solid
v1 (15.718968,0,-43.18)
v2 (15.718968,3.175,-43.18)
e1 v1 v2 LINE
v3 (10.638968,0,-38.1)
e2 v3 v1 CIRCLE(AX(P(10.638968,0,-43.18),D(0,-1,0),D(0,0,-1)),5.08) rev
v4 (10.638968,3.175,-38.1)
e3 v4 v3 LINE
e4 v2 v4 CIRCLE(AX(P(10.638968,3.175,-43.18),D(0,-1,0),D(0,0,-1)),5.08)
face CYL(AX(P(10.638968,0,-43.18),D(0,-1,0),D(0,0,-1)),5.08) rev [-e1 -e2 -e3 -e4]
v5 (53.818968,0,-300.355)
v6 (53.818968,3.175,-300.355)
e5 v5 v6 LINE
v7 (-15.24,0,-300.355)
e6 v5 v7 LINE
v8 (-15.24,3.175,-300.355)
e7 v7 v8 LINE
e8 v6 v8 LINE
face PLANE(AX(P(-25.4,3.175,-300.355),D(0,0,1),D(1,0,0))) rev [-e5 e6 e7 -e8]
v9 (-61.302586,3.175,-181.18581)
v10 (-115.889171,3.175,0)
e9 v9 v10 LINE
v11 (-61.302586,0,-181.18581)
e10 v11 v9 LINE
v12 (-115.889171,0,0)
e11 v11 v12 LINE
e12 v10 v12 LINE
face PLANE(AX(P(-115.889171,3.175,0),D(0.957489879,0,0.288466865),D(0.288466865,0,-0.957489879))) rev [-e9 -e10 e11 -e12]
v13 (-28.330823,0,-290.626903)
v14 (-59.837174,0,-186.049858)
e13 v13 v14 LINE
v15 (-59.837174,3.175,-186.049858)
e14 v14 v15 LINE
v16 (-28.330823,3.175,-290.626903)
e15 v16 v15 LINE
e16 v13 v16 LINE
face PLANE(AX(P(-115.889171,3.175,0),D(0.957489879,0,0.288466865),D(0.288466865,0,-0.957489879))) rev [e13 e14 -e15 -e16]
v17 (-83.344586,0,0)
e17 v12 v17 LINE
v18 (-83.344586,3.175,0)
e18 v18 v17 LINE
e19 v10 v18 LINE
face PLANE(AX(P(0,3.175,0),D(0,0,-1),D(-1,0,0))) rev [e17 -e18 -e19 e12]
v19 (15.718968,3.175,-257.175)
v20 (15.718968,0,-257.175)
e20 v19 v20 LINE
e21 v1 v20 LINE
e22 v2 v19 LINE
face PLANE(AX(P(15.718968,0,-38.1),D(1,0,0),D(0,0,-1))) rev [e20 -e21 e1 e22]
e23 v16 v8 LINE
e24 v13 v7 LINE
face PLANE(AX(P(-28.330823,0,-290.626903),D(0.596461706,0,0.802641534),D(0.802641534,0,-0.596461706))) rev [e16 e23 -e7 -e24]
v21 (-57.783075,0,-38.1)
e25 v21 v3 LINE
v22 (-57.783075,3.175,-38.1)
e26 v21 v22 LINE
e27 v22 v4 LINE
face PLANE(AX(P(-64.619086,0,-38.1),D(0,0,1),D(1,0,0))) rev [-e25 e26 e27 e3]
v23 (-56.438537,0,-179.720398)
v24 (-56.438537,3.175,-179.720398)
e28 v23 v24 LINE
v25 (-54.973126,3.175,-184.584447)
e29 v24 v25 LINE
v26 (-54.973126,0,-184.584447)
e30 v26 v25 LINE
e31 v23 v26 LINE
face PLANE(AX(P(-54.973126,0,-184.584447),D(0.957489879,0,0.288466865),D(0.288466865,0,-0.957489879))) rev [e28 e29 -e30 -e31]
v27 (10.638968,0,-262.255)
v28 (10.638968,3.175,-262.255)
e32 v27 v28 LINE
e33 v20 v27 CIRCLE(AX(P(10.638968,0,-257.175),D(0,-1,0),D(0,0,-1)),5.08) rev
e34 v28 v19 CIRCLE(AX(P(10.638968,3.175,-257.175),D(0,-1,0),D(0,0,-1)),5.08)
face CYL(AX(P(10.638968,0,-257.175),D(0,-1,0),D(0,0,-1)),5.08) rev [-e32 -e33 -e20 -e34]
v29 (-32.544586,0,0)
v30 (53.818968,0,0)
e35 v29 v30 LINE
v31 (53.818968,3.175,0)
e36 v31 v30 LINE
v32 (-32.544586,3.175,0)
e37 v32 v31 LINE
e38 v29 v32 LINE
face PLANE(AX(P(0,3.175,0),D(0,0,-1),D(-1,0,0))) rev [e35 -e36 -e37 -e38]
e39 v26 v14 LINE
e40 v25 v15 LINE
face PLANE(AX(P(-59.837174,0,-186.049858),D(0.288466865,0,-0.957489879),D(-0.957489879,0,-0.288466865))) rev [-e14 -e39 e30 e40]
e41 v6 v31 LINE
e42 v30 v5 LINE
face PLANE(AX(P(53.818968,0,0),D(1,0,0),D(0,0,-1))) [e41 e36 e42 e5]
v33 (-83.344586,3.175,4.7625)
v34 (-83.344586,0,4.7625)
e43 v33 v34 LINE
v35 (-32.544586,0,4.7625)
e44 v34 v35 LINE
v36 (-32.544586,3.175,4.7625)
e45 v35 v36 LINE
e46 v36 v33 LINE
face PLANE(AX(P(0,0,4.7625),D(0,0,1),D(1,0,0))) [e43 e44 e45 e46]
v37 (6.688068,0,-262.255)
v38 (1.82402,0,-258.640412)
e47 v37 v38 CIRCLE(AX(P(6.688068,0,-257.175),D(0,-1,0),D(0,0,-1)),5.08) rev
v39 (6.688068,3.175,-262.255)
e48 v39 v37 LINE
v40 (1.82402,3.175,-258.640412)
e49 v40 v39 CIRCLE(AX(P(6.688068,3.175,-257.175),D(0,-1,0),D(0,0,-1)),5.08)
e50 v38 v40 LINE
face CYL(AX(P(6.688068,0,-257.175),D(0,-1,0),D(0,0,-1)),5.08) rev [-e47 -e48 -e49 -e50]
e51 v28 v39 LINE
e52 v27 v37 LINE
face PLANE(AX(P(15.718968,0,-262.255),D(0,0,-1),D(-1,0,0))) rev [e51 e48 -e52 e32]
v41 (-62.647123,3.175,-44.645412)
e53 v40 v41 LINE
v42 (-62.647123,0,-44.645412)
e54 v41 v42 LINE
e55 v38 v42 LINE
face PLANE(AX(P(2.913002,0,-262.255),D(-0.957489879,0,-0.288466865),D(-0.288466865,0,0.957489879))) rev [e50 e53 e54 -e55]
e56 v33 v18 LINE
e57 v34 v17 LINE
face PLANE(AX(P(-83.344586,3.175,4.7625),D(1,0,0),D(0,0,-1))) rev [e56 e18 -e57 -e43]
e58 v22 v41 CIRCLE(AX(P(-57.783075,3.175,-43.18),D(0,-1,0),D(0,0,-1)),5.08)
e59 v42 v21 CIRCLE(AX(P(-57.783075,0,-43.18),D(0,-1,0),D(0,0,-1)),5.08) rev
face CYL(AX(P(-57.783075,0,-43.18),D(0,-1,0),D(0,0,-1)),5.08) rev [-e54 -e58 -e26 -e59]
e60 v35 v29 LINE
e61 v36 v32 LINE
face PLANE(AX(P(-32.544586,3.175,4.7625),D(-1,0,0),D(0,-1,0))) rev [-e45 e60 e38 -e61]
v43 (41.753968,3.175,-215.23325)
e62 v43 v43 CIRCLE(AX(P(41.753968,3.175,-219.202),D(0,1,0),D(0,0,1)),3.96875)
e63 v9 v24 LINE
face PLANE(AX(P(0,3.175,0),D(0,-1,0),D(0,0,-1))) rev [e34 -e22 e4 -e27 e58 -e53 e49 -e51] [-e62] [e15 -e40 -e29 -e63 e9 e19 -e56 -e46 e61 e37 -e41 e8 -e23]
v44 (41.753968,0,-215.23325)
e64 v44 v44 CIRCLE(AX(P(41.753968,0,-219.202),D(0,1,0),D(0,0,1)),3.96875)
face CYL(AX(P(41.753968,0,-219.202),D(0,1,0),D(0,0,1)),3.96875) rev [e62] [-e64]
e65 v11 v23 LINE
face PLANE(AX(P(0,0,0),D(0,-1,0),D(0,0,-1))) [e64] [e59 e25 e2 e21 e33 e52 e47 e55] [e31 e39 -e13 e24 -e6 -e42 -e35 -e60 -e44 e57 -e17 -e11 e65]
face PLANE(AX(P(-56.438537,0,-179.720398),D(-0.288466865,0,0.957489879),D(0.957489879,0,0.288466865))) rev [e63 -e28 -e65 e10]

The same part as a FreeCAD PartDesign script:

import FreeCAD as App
import Part
import Sketcher

V = App.Vector
Q = App.Units.Quantity


def edges_at(feature, points):
    """Names of the edges that pass closest to the given points."""
    edges = feature.Shape.Edges
    near = lambda p: min(range(len(edges)), key=lambda i: edges[i].distToShape(Part.Vertex(*p))[0])
    return sorted({f"Edge{near(p) + 1}" for p in points})


def add_polygon(sketch, points):
    """Adds a closed chain of lines whose ends are joined by coincident constraints."""
    first, n = sketch.GeometryCount, len(points)
    for a, b in zip(points, points[1:] + points[:1]):
        sketch.addGeometry(Part.LineSegment(App.Vector(*a, 0), App.Vector(*b, 0)), False)
    for i in range(n):
        sketch.addConstraint(Sketcher.Constraint("Coincident", first + i, 2, first + (i + 1) % n, 1))

doc = App.newDocument("Part")
body = doc.addObject("PartDesign::Body", "Body")

# Sketch on XZ plane
sketch1 = body.newObject("Sketcher::SketchObject", "Sketch")
sketch1.AttachmentSupport = (doc.getObject("XZ_Plane"), [""])
sketch1.MapMode = "FlatFace"
add_polygon(sketch1, [(-115.889171, 0), (0, 0), (0, -300.355), (-25.4, -300.355)])  # lines 0-3
sketch1.addConstraint(Sketcher.Constraint("Horizontal", 0))
sketch1.addConstraint(Sketcher.Constraint("Vertical", 1))
sketch1.addConstraint(Sketcher.Constraint("Horizontal", 2))
sketch1.addConstraint(Sketcher.Constraint("Coincident", 0, 2, -1, 1))
sketch1.addConstraint(Sketcher.Constraint("DistanceX", 2, 2, 2, 1, Q("1 in")))
sketch1.addConstraint(Sketcher.Constraint("Distance", 3, Q("12.35 in")))
sketch1.addConstraint(Sketcher.Constraint("DistanceY", 1, 2, 1, 1, Q("11.825 in")))
pad1 = body.newObject("PartDesign::Pad", "Pad")
pad1.Profile = sketch1
pad1.Length = Q("0.125 in")
pad1.Reversed = True

# Sketch on XY plane
sketch2 = body.newObject("Sketcher::SketchObject", "Sketch001")
sketch2.AttachmentSupport = (doc.getObject("XY_Plane"), [""])
sketch2.MapMode = "FlatFace"
add_polygon(sketch2, [(-83.344586, 3.175), (-83.344586, 0), (-32.544586, 0), (-32.544586, 3.175)])  # lines 0-3
sketch2.addConstraint(Sketcher.Constraint("Vertical", 0))
sketch2.addConstraint(Sketcher.Constraint("Horizontal", 1))
sketch2.addConstraint(Sketcher.Constraint("Vertical", 2))
sketch2.addConstraint(Sketcher.Constraint("Horizontal", 3))
sketch2.addConstraint(Sketcher.Constraint("PointOnObject", 0, 2, -1))
sketch2.addConstraint(Sketcher.Constraint("DistanceX", 1, 1, 1, 2, Q("2 in")))
sketch2.addConstraint(Sketcher.Constraint("DistanceY", 0, 2, 0, 1, Q("0.125 in")))
sketch2.addConstraint(Sketcher.Constraint("DistanceX", 0, 2, -1, 1, Q("83.344586 mm")))
pad2 = body.newObject("PartDesign::Pad", "Pad001")
pad2.Profile = sketch2
pad2.Length = Q("0.1875 in")

# Sketch on YZ plane
sketch3 = body.newObject("Sketcher::SketchObject", "Sketch002")
sketch3.AttachmentSupport = (doc.getObject("YZ_Plane"), [""])
sketch3.MapMode = "FlatFace"
add_polygon(sketch3, [(3.175, 0), (0, 0), (0, -300.355), (3.175, -300.355)])  # lines 0-3
sketch3.addConstraint(Sketcher.Constraint("Horizontal", 0))
sketch3.addConstraint(Sketcher.Constraint("Vertical", 1))
sketch3.addConstraint(Sketcher.Constraint("Horizontal", 2))
sketch3.addConstraint(Sketcher.Constraint("Vertical", 3))
sketch3.addConstraint(Sketcher.Constraint("Coincident", 0, 2, -1, 1))
sketch3.addConstraint(Sketcher.Constraint("DistanceX", 0, 2, 0, 1, Q("0.125 in")))
sketch3.addConstraint(Sketcher.Constraint("DistanceY", 1, 2, 1, 1, Q("11.825 in")))
pad3 = body.newObject("PartDesign::Pad", "Pad002")
pad3.Profile = sketch3
pad3.Length = 53.818968

# Sketch on XZ plane
sketch4 = body.newObject("Sketcher::SketchObject", "Sketch003")
sketch4.AttachmentSupport = (doc.getObject("XZ_Plane"), [""])
sketch4.MapMode = "FlatFace"
sketch4.AttachmentOffset = App.Placement(V(0, 0, -0.125 * 25.4), App.Rotation())
sketch4.addGeometry(Part.Circle(V(41.753968, -219.202, 0), V(0, 0, 1), 3.96875), False)  # 0
add_polygon(sketch4, [(-28.330823, -290.626903), (-15.24, -300.355), (-25.4, -300.355)])  # lines 1-3
sketch4.addConstraint(Sketcher.Constraint("Horizontal", 2))
sketch4.addConstraint(Sketcher.Constraint("Diameter", 0, Q("0.3125 in")))
sketch4.addConstraint(Sketcher.Constraint("DistanceX", 2, 2, 2, 1, Q("0.4 in")))
sketch4.addConstraint(Sketcher.Constraint("DistanceX", 2, 2, -1, 1, Q("1 in")))
sketch4.addConstraint(Sketcher.Constraint("Distance", 3, Q("0.4 in")))
sketch4.addConstraint(Sketcher.Constraint("DistanceY", 0, 3, -1, 1, Q("8.63 in")))
sketch4.addConstraint(Sketcher.Constraint("DistanceY", 1, 2, -1, 1, Q("11.825 in")))
sketch4.addConstraint(Sketcher.Constraint("DistanceX", 3, 2, 0, 3, Q("70.084791 mm")))
sketch4.addConstraint(Sketcher.Constraint("Distance", 1, Q("16.309676 mm")))
pocket1 = body.newObject("PartDesign::Pocket", "Pocket")
pocket1.Profile = sketch4
pocket1.Type = "ThroughAll"
pocket1.Reversed = True

# Sketch on XZ plane
sketch5 = body.newObject("Sketcher::SketchObject", "Sketch004")
sketch5.AttachmentSupport = (doc.getObject("XZ_Plane"), [""])
sketch5.MapMode = "FlatFace"
sketch5.AttachmentOffset = App.Placement(V(0, 0, -0.125 * 25.4), App.Rotation())
add_polygon(sketch5, [(-64.619086, -38.1), (15.718968, -38.1), (15.718968, -262.255), (2.913002, -262.255)])  # lines 0-3
sketch5.addConstraint(Sketcher.Constraint("Horizontal", 0))
sketch5.addConstraint(Sketcher.Constraint("Vertical", 1))
sketch5.addConstraint(Sketcher.Constraint("Horizontal", 2))
sketch5.addConstraint(Sketcher.Constraint("DistanceY", 0, 2, -1, 1, Q("1.5 in")))
sketch5.addConstraint(Sketcher.Constraint("DistanceY", 1, 2, 1, 1, Q("8.825 in")))
sketch5.addConstraint(Sketcher.Constraint("DistanceX", -1, 1, 2, 2, Q("2.913002 mm")))
sketch5.addConstraint(Sketcher.Constraint("DistanceX", 0, 1, 0, 2, Q("80.338054 mm")))
sketch5.addConstraint(Sketcher.Constraint("DistanceX", 2, 2, 2, 1, Q("12.805966 mm")))
pocket2 = body.newObject("PartDesign::Pocket", "Pocket001")
pocket2.Profile = sketch5
pocket2.Type = "ThroughAll"
pocket2.Reversed = True
doc.recompute()

fillet = body.newObject("PartDesign::Fillet", "Fillet")
fillet.Base = (pocket2, edges_at(pocket2, [
    (-64.619, 1.587, -38.1),
    (2.913, 1.587, -262.255),
    (15.719, 1.587, -262.255),
    (15.719, 1.587, -38.1),
]))
fillet.Radius = Q("0.2 in")

# Sketch on XZ plane
sketch6 = body.newObject("Sketcher::SketchObject", "Sketch005")
sketch6.AttachmentSupport = (doc.getObject("XZ_Plane"), [""])
sketch6.MapMode = "FlatFace"
sketch6.AttachmentOffset = App.Placement(V(0, 0, -0.125 * 25.4), App.Rotation())
add_polygon(sketch6, [(-54.973126, -184.584447), (-59.837174, -186.049858), (-61.302586, -181.18581), (-56.438537, -179.720398)])  # lines 0-3
sketch6.addConstraint(Sketcher.Constraint("Perpendicular", 0, 1))
sketch6.addConstraint(Sketcher.Constraint("Perpendicular", 1, 2))
sketch6.addConstraint(Sketcher.Constraint("Perpendicular", 2, 3))
sketch6.addConstraint(Sketcher.Constraint("Equal", 0, 1))
sketch6.addConstraint(Sketcher.Constraint("Distance", 0, Q("0.2 in")))
sketch6.addConstraint(Sketcher.Constraint("DistanceY", 2, 2, -1, 1, Q("179.720398 mm")))
sketch6.addConstraint(Sketcher.Constraint("DistanceY", 0, 2, -1, 1, Q("186.049858 mm")))
sketch6.addConstraint(Sketcher.Constraint("DistanceX", 0, 2, -1, 1, Q("59.837174 mm")))
pocket3 = body.newObject("PartDesign::Pocket", "Pocket002")
pocket3.Profile = sketch6
pocket3.Type = "ThroughAll"
pocket3.Reversed = True

doc.recompute()
